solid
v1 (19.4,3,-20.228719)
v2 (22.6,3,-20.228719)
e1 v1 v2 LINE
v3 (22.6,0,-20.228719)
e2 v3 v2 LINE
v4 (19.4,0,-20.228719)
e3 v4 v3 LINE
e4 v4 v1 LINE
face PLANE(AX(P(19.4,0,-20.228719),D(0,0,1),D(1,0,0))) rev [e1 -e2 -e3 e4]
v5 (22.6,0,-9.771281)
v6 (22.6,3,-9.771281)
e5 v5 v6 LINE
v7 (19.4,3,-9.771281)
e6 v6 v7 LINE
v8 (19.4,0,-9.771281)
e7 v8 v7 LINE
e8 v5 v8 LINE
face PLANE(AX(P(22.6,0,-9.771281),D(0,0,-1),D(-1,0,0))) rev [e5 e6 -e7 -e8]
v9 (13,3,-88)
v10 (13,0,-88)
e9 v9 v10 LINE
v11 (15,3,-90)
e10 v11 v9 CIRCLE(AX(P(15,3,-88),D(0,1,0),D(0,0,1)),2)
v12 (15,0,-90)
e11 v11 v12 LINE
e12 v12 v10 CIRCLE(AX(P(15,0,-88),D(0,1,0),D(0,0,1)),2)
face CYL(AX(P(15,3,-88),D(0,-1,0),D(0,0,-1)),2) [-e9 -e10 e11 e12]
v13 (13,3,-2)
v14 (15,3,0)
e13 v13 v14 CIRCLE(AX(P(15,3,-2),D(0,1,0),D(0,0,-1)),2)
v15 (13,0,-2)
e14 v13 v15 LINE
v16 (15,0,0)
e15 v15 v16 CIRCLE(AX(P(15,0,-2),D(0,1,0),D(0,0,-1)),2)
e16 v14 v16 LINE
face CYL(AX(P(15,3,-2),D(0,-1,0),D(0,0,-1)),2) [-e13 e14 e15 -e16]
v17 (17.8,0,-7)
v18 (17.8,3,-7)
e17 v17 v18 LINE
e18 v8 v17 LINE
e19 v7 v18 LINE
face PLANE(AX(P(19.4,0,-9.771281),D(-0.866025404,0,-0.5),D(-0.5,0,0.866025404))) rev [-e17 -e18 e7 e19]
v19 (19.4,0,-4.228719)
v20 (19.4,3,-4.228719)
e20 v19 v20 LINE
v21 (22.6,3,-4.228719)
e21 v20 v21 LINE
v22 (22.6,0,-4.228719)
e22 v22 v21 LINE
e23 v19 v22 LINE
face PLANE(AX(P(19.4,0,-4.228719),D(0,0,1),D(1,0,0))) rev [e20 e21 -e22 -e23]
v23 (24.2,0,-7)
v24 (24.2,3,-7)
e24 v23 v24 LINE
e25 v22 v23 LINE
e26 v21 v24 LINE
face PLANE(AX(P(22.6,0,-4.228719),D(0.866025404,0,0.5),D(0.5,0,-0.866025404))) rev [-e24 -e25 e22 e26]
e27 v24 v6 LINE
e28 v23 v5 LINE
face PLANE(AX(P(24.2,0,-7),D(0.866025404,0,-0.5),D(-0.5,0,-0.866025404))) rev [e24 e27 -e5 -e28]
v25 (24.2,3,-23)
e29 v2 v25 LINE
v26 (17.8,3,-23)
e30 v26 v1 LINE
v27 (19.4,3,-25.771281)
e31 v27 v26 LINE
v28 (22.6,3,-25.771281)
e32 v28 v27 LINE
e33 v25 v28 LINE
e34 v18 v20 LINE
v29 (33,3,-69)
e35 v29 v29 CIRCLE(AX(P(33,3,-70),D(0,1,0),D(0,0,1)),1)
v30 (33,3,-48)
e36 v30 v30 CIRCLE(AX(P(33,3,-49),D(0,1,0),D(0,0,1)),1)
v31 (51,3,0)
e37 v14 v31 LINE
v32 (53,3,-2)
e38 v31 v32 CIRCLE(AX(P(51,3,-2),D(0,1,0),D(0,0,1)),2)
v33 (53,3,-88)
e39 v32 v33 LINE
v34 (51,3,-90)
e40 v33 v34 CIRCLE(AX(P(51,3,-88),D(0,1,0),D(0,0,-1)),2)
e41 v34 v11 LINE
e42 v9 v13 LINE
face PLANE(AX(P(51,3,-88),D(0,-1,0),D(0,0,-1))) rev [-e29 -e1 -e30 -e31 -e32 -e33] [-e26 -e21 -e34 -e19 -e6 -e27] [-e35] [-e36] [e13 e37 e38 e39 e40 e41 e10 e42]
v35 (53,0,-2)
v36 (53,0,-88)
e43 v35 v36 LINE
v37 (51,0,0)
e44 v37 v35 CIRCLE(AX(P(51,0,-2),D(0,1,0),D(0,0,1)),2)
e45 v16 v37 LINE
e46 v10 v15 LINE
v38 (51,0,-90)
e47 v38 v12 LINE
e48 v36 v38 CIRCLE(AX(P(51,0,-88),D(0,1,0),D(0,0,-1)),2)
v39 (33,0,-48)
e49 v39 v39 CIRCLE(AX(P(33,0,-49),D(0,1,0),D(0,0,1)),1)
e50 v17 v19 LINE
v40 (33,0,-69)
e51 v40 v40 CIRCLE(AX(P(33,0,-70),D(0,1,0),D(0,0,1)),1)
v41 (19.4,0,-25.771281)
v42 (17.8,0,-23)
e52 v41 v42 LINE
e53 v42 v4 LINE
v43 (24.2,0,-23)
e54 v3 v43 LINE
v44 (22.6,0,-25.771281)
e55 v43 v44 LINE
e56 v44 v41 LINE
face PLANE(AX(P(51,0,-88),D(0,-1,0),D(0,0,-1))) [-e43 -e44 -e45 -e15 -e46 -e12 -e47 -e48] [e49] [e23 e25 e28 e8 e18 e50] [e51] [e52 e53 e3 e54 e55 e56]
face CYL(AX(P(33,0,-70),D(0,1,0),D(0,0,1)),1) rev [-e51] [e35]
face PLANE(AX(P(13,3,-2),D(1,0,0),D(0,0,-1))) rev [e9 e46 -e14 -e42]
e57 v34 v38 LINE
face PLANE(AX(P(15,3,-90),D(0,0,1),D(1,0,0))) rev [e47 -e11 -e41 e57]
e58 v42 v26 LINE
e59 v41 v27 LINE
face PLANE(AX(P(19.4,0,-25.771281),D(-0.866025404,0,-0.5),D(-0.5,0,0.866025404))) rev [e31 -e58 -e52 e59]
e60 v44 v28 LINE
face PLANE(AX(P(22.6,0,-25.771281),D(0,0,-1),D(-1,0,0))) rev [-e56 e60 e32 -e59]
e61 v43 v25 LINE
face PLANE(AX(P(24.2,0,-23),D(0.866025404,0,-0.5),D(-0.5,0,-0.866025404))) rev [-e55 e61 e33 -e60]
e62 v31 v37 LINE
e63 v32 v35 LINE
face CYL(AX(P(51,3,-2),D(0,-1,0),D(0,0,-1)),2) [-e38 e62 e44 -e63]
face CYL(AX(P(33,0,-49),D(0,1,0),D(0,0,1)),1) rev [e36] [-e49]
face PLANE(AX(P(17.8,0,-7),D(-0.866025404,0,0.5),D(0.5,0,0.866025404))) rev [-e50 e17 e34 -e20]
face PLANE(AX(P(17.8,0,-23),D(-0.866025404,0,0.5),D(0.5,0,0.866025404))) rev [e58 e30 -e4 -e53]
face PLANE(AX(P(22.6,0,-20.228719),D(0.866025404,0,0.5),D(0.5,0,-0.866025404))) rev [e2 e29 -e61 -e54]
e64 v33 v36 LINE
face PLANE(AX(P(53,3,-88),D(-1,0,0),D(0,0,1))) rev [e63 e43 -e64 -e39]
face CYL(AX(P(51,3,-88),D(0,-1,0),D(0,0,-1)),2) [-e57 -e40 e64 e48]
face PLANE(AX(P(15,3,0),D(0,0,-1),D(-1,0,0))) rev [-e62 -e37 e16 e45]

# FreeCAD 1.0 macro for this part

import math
import FreeCAD as App
import Part
import Sketcher
Q = App.Units.Quantity

doc = App.newDocument("Part")
params = doc.addObject("Spreadsheet::Sheet", "Params")
for row, (alias, value) in enumerate([
    ("sketch1_radius", "2 mm"),
    ("sketch1_width", "36 mm"),
    ("sketch1_height", "86 mm"),
    ("pad1_length", "3 mm"),
    ("sketch2_diameter", "2.2 mm"),
    ("sketch3_diameter", "2 mm"),
    ("sketch3_width", "3.2 mm"),
    ("sketch3_length", "3.2 mm"),
], start=1):
    params.set(f"A{row}", alias)
    params.set(f"B{row}", "=" + value)
    params.setAlias(f"B{row}", alias)

body = doc.addObject("PartDesign::Body", "Body")

# Sketch on XZ plane
sketch1 = body.newObject("Sketcher::SketchObject", "Sketch")
sketch1.AttachmentSupport = (doc.getObject("XZ_Plane"), [""])
sketch1.MapMode = "FlatFace"
sketch1.addGeometry(Part.LineSegment(App.Vector(13, -88, 0), App.Vector(13, -2, 0)), False)
sketch1.addGeometry(Part.ArcOfCircle(Part.Circle(App.Vector(15, -2, 0), App.Vector(0, 0, 1), 2), math.radians(90), math.radians(180)), False)
sketch1.addGeometry(Part.LineSegment(App.Vector(15, 0, 0), App.Vector(51, 0, 0)), False)
sketch1.addGeometry(Part.ArcOfCircle(Part.Circle(App.Vector(51, -2, 0), App.Vector(0, 0, 1), 2), math.radians(0), math.radians(90)), False)
sketch1.addGeometry(Part.LineSegment(App.Vector(53, -2, 0), App.Vector(53, -88, 0)), False)
sketch1.addGeometry(Part.ArcOfCircle(Part.Circle(App.Vector(51, -88, 0), App.Vector(0, 0, 1), 2), math.radians(-90), math.radians(0)), False)
sketch1.addGeometry(Part.LineSegment(App.Vector(51, -90, 0), App.Vector(15, -90, 0)), False)
sketch1.addGeometry(Part.ArcOfCircle(Part.Circle(App.Vector(15, -88, 0), App.Vector(0, 0, 1), 2), math.radians(-180), math.radians(-90)), False)
sketch1.addConstraint(Sketcher.Constraint("Tangent", 0, 2, 1, 2))
sketch1.addConstraint(Sketcher.Constraint("Tangent", 1, 1, 2, 1))
sketch1.addConstraint(Sketcher.Constraint("Tangent", 2, 2, 3, 2))
sketch1.addConstraint(Sketcher.Constraint("Tangent", 3, 1, 4, 1))
sketch1.addConstraint(Sketcher.Constraint("Tangent", 4, 2, 5, 2))
sketch1.addConstraint(Sketcher.Constraint("Tangent", 5, 1, 6, 1))
sketch1.addConstraint(Sketcher.Constraint("Tangent", 6, 2, 7, 2))
sketch1.addConstraint(Sketcher.Constraint("Tangent", 7, 1, 0, 1))
sketch1.addConstraint(Sketcher.Constraint("Vertical", 0))
sketch1.addConstraint(Sketcher.Constraint("Horizontal", 2))
sketch1.addConstraint(Sketcher.Constraint("Vertical", 4))
sketch1.addConstraint(Sketcher.Constraint("Horizontal", 6))
sketch1.addConstraint(Sketcher.Constraint("Equal", 1, 3))
sketch1.addConstraint(Sketcher.Constraint("Equal", 3, 5))
sketch1.addConstraint(Sketcher.Constraint("Equal", 5, 7))
sketch1.addConstraint(Sketcher.Constraint("PointOnObject", 1, 1, -1))
sketch1.addConstraint(Sketcher.Constraint("Radius", 1, 2.0))
sketch1.addConstraint(Sketcher.Constraint("DistanceX", 2, 1, 2, 2, 36.0))
sketch1.addConstraint(Sketcher.Constraint("DistanceY", 0, 1, 0, 2, 86.0))
sketch1.addConstraint(Sketcher.Constraint("DistanceX", -1, 1, 1, 3, 15.0))
sketch1.setExpression("Constraints[16]", "Params.sketch1_radius")
sketch1.setExpression("Constraints[17]", "Params.sketch1_width")
sketch1.setExpression("Constraints[18]", "Params.sketch1_height")
pad1 = body.newObject("PartDesign::Pad", "Pad")
pad1.Profile = sketch1
pad1.setExpression("Length", "Params.pad1_length")
pad1.Reversed = True

# Sketch on XZ plane
sketch2 = body.newObject("Sketcher::SketchObject", "Sketch001")
sketch2.AttachmentSupport = (doc.getObject("XZ_Plane"), [""])
sketch2.MapMode = "FlatFace"
sketch2.addGeometry(Part.Circle(App.Vector(21, -7, 0), App.Vector(0, 0, 1), 1.1), False)
sketch2.addGeometry(Part.Circle(App.Vector(21, -23, 0), App.Vector(0, 0, 1), 1.1), False)
sketch2.addConstraint(Sketcher.Constraint("Equal", 0, 1))
sketch2.addConstraint(Sketcher.Constraint("Vertical", 0, 3, 1, 3))
sketch2.addConstraint(Sketcher.Constraint("Diameter", 0, 2.2))
sketch2.addConstraint(Sketcher.Constraint("DistanceX", -1, 1, 0, 3, 21.0))
sketch2.addConstraint(Sketcher.Constraint("DistanceY", 0, 3, -1, 1, 7.0))
sketch2.addConstraint(Sketcher.Constraint("DistanceY", 1, 3, -1, 1, 23.0))
sketch2.setExpression("Constraints[2]", "Params.sketch2_diameter")
pocket1 = body.newObject("PartDesign::Pocket", "Pocket")
pocket1.Profile = sketch2
pocket1.Type = "ThroughAll"

# Sketch on XZ plane
sketch3 = body.newObject("Sketcher::SketchObject", "Sketch002")
sketch3.AttachmentSupport = (doc.getObject("XZ_Plane"), [""])
sketch3.MapMode = "FlatFace"
sketch3.AttachmentOffset = App.Placement(App.Vector(0, 0, -3), App.Rotation())
sketch3.addGeometry(Part.Circle(App.Vector(33, -70, 0), App.Vector(0, 0, 1), 1), False)
sketch3.addGeometry(Part.Circle(App.Vector(33, -49, 0), App.Vector(0, 0, 1), 1), False)
sketch3.addGeometry(Part.LineSegment(App.Vector(17.8, -23, 0), App.Vector(19.4, -20.228719, 0)), False)
sketch3.addGeometry(Part.LineSegment(App.Vector(19.4, -20.228719, 0), App.Vector(22.6, -20.228719, 0)), False)
sketch3.addGeometry(Part.LineSegment(App.Vector(22.6, -20.228719, 0), App.Vector(24.2, -23, 0)), False)
sketch3.addGeometry(Part.LineSegment(App.Vector(24.2, -23, 0), App.Vector(22.6, -25.771281, 0)), False)
sketch3.addGeometry(Part.LineSegment(App.Vector(22.6, -25.771281, 0), App.Vector(19.4, -25.771281, 0)), False)
sketch3.addGeometry(Part.LineSegment(App.Vector(19.4, -25.771281, 0), App.Vector(17.8, -23, 0)), False)
sketch3.addGeometry(Part.LineSegment(App.Vector(17.8, -7, 0), App.Vector(19.4, -4.228719, 0)), False)
sketch3.addGeometry(Part.LineSegment(App.Vector(19.4, -4.228719, 0), App.Vector(22.6, -4.228719, 0)), False)
sketch3.addGeometry(Part.LineSegment(App.Vector(22.6, -4.228719, 0), App.Vector(24.2, -7, 0)), False)
sketch3.addGeometry(Part.LineSegment(App.Vector(24.2, -7, 0), App.Vector(22.6, -9.771281, 0)), False)
sketch3.addGeometry(Part.LineSegment(App.Vector(22.6, -9.771281, 0), App.Vector(19.4, -9.771281, 0)), False)
sketch3.addGeometry(Part.LineSegment(App.Vector(19.4, -9.771281, 0), App.Vector(17.8, -7, 0)), False)
sketch3.addConstraint(Sketcher.Constraint("Coincident", 2, 2, 3, 1))
sketch3.addConstraint(Sketcher.Constraint("Coincident", 3, 2, 4, 1))
sketch3.addConstraint(Sketcher.Constraint("Coincident", 4, 2, 5, 1))
sketch3.addConstraint(Sketcher.Constraint("Coincident", 5, 2, 6, 1))
sketch3.addConstraint(Sketcher.Constraint("Coincident", 6, 2, 7, 1))
sketch3.addConstraint(Sketcher.Constraint("Coincident", 7, 2, 2, 1))
sketch3.addConstraint(Sketcher.Constraint("Coincident", 8, 2, 9, 1))
sketch3.addConstraint(Sketcher.Constraint("Coincident", 9, 2, 10, 1))
sketch3.addConstraint(Sketcher.Constraint("Coincident", 10, 2, 11, 1))
sketch3.addConstraint(Sketcher.Constraint("Coincident", 11, 2, 12, 1))
sketch3.addConstraint(Sketcher.Constraint("Coincident", 12, 2, 13, 1))
sketch3.addConstraint(Sketcher.Constraint("Coincident", 13, 2, 8, 1))
sketch3.addConstraint(Sketcher.Constraint("Horizontal", 3))
sketch3.addConstraint(Sketcher.Constraint("Horizontal", 6))
sketch3.addConstraint(Sketcher.Constraint("Horizontal", 9))
sketch3.addConstraint(Sketcher.Constraint("Horizontal", 12))
sketch3.addConstraint(Sketcher.Constraint("Equal", 0, 1))
sketch3.addConstraint(Sketcher.Constraint("Parallel", 2, 5))
sketch3.addConstraint(Sketcher.Constraint("Parallel", 4, 7))
sketch3.addConstraint(Sketcher.Constraint("Parallel", 5, 8))
sketch3.addConstraint(Sketcher.Constraint("Parallel", 7, 10))
sketch3.addConstraint(Sketcher.Constraint("Parallel", 8, 11))
sketch3.addConstraint(Sketcher.Constraint("Parallel", 10, 13))
sketch3.addConstraint(Sketcher.Constraint("Horizontal", 4, 2, 7, 2))
sketch3.addConstraint(Sketcher.Constraint("Horizontal", 10, 2, 13, 2))
sketch3.addConstraint(Sketcher.Constraint("Vertical", 0, 3, 1, 3))
sketch3.addConstraint(Sketcher.Constraint("Vertical", 3, 2, 5, 2))
sketch3.addConstraint(Sketcher.Constraint("Vertical", 2, 2, 6, 2))
sketch3.addConstraint(Sketcher.Constraint("Vertical", 6, 2, 8, 2))
sketch3.addConstraint(Sketcher.Constraint("Vertical", 5, 2, 9, 2))
sketch3.addConstraint(Sketcher.Constraint("Vertical", 4, 2, 10, 2))
sketch3.addConstraint(Sketcher.Constraint("Vertical", 9, 2, 11, 2))
sketch3.addConstraint(Sketcher.Constraint("Diameter", 0, 2.0))
sketch3.addConstraint(Sketcher.Constraint("Angle", 2, Q("60 deg")))
sketch3.addConstraint(Sketcher.Constraint("DistanceX", 3, 1, 3, 2, 3.2))
sketch3.addConstraint(Sketcher.Constraint("DistanceX", -1, 1, 0, 3, 33.0))
sketch3.addConstraint(Sketcher.Constraint("DistanceY", 0, 3, -1, 1, 70.0))
sketch3.addConstraint(Sketcher.Constraint("DistanceY", 1, 3, -1, 1, 49.0))
sketch3.addConstraint(Sketcher.Constraint("DistanceY", 4, 2, -1, 1, 23.0))
sketch3.addConstraint(Sketcher.Constraint("DistanceY", 10, 2, -1, 1, 7.0))
sketch3.addConstraint(Sketcher.Constraint("Distance", 2, 3.2))
sketch3.addConstraint(Sketcher.Constraint("DistanceX", -1, 1, 2, 2, 19.4))
sketch3.setExpression("Constraints[32]", "Params.sketch3_diameter")
sketch3.setExpression("Constraints[34]", "Params.sketch3_width")
sketch3.setExpression("Constraints[40]", "Params.sketch3_length")
pocket2 = body.newObject("PartDesign::Pocket", "Pocket001")
pocket2.Profile = sketch3
pocket2.Type = "ThroughAll"
pocket2.Reversed = True

doc.recompute()
